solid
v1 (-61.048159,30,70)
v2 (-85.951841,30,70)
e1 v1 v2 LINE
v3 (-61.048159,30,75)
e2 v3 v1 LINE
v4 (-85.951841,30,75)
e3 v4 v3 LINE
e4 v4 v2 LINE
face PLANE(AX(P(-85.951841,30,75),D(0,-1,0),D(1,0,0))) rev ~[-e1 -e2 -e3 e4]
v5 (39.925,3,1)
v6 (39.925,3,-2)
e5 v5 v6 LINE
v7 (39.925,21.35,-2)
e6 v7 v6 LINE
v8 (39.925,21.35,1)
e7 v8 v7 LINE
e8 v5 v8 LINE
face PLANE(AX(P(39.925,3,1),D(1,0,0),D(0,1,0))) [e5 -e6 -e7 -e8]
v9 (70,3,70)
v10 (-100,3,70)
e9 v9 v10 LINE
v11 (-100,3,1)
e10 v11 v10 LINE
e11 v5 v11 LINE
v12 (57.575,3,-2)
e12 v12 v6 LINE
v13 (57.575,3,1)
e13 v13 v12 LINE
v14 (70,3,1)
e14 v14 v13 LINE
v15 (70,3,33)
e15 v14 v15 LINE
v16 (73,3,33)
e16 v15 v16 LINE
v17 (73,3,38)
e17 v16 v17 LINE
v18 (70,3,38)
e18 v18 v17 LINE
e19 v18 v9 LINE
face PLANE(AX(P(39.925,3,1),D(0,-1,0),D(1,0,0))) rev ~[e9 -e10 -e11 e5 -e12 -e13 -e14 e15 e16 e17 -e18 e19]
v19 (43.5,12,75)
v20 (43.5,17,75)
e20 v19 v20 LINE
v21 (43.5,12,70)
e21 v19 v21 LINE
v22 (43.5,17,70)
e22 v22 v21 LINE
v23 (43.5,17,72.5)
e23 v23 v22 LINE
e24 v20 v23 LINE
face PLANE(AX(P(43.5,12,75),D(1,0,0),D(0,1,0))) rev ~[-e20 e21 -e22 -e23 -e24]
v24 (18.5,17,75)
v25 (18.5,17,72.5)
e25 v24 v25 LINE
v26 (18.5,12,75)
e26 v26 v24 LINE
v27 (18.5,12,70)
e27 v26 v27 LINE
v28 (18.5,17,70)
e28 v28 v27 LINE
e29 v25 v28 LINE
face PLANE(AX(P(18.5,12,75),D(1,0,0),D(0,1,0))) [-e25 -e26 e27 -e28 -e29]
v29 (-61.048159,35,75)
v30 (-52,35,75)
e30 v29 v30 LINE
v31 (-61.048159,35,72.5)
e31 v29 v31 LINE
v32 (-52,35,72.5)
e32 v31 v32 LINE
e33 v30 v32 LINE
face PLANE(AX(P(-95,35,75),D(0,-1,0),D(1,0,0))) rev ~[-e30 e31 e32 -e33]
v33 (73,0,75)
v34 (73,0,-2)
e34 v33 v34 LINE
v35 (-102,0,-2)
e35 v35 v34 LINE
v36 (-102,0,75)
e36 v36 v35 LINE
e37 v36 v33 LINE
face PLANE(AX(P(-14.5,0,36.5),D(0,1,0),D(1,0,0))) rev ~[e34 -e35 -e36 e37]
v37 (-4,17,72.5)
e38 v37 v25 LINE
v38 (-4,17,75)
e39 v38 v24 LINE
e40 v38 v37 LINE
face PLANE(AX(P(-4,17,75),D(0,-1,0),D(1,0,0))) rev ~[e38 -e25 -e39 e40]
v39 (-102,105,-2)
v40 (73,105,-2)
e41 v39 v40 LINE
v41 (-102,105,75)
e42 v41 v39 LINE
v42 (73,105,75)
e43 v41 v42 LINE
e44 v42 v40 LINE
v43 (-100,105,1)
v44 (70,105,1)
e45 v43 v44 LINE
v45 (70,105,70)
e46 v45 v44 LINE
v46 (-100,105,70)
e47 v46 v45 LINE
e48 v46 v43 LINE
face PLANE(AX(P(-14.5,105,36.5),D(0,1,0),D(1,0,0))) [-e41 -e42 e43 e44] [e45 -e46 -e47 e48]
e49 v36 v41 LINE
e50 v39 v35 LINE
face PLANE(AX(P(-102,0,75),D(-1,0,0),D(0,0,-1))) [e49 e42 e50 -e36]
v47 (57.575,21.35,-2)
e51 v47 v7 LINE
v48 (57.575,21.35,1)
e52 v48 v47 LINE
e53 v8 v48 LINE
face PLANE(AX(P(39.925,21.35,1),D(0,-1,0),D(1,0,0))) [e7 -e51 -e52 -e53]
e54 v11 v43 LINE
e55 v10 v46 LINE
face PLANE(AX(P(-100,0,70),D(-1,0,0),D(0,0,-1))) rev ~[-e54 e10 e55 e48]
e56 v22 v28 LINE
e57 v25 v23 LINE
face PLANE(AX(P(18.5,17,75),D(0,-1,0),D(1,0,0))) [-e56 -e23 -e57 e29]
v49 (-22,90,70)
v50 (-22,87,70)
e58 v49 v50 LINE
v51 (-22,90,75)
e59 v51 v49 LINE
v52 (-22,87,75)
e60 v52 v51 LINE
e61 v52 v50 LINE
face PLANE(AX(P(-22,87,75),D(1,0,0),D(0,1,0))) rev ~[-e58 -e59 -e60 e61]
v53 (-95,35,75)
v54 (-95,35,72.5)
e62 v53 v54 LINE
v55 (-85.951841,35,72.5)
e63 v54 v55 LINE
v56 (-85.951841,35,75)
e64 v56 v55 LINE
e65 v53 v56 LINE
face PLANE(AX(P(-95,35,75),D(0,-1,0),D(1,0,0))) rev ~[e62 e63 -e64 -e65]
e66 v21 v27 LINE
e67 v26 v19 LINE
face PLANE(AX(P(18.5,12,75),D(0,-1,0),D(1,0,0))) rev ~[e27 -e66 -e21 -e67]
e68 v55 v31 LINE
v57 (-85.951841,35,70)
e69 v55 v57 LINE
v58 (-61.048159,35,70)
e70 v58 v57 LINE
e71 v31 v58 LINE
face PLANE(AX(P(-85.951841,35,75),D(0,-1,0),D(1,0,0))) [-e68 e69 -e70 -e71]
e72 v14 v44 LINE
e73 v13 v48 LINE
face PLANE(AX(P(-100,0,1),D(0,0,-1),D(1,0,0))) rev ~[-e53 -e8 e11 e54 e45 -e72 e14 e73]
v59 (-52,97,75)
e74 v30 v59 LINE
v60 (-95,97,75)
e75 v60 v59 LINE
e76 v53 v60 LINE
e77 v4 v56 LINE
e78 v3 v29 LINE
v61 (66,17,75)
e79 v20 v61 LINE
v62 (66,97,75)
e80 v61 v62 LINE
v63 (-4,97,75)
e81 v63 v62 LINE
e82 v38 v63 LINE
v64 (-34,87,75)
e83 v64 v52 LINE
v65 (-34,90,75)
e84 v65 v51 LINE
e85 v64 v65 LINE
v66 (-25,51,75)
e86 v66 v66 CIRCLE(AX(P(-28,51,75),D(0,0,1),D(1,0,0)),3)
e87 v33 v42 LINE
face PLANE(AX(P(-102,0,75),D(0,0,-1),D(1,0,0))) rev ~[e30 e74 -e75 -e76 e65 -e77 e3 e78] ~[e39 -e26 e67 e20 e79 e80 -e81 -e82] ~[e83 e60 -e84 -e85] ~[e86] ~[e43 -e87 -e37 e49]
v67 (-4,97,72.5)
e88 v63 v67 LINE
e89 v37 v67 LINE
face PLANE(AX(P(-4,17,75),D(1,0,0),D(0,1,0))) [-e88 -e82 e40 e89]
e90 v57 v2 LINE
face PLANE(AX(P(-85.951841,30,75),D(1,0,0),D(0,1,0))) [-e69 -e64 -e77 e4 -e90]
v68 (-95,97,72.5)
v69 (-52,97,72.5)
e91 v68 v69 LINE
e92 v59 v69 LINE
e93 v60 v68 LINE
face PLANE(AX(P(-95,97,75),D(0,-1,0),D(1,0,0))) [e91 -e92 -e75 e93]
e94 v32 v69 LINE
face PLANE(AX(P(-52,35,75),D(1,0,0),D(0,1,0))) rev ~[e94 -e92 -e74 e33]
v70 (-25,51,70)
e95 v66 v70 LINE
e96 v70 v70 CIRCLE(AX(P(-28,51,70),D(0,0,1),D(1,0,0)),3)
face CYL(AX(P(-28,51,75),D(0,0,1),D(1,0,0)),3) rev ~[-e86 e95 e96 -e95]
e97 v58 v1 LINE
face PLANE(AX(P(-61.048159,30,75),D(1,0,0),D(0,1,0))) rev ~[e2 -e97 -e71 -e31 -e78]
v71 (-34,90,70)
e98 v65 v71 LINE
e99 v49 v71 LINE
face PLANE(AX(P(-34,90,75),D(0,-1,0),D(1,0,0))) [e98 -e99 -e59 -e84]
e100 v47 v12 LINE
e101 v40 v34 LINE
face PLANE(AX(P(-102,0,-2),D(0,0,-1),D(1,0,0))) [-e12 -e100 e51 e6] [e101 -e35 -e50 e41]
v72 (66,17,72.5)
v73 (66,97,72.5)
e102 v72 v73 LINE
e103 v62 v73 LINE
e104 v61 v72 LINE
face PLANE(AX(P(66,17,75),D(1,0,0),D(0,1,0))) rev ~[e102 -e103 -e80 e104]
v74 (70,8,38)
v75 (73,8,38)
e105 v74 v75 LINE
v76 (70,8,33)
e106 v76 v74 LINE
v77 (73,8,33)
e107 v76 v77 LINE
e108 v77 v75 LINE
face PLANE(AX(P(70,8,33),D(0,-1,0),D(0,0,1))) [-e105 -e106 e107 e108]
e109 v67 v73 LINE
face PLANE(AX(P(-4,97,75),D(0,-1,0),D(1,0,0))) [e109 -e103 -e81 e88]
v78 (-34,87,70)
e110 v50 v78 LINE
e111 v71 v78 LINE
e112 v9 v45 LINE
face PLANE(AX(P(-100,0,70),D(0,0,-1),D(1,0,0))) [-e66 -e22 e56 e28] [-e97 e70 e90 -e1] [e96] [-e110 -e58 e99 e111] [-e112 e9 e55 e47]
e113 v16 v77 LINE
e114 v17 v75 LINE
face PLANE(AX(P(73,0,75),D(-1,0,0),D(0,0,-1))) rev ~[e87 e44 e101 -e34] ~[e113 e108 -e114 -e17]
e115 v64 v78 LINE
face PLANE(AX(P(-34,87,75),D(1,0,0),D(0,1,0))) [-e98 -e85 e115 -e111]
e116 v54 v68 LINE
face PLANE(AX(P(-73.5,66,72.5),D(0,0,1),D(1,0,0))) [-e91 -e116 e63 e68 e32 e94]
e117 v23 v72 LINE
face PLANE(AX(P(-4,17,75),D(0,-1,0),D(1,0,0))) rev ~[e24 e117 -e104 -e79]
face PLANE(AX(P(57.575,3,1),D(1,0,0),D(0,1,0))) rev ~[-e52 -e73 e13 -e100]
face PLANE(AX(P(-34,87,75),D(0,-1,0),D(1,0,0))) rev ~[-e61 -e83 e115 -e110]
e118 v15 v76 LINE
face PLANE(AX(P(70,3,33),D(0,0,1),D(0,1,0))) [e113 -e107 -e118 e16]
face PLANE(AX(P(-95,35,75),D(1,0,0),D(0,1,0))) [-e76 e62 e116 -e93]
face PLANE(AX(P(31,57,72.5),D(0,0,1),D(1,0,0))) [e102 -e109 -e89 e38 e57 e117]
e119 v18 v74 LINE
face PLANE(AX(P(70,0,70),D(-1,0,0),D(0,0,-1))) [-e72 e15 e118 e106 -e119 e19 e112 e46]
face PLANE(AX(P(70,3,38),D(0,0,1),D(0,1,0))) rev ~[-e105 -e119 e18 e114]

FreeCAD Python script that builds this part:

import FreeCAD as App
import Part
import Sketcher

V = App.Vector


def add_polygon(sketch, points):
    """Adds a closed chain of lines whose ends are joined by coincident constraints."""
    first, n = sketch.GeometryCount, len(points)
    for a, b in zip(points, points[1:] + points[:1]):
        sketch.addGeometry(Part.LineSegment(App.Vector(*a, 0), App.Vector(*b, 0)), False)
    for i in range(n):
        sketch.addConstraint(Sketcher.Constraint("Coincident", first + i, 2, first + (i + 1) % n, 1))

doc = App.newDocument("Part")
body = doc.addObject("PartDesign::Body", "Body")

# Sketch on XZ plane
sketch1 = body.newObject("Sketcher::SketchObject", "Sketch")
sketch1.AttachmentSupport = (doc.getObject("XZ_Plane"), [""])
sketch1.MapMode = "FlatFace"
add_polygon(sketch1, [(-102, -2), (-102, 75), (73, 75), (73, -2)])  # lines 0-3
add_polygon(sketch1, [(70, 70), (-100, 70), (-100, 1), (70, 1)])  # lines 4-7
sketch1.addConstraint([
    Sketcher.Constraint("Vertical", 0),
    Sketcher.Constraint("Horizontal", 1),
    Sketcher.Constraint("Vertical", 2),
    Sketcher.Constraint("Horizontal", 3),
    Sketcher.Constraint("Horizontal", 4),
    Sketcher.Constraint("Vertical", 5),
    Sketcher.Constraint("Horizontal", 6),
    Sketcher.Constraint("Vertical", 7),
    Sketcher.Constraint("DistanceX", 1, 1, 1, 2, 175.0),
    Sketcher.Constraint("DistanceX", 4, 2, 4, 1, 170.0),
    Sketcher.Constraint("DistanceY", 0, 1, 0, 2, 77.0),
    Sketcher.Constraint("DistanceY", 5, 2, 5, 1, 69.0),
    Sketcher.Constraint("DistanceX", 0, 2, -1, 1, 102.0),
    Sketcher.Constraint("DistanceY", -1, 1, 0, 2, 75.0),
    Sketcher.Constraint("DistanceX", 4, 2, -1, 1, 100.0),
    Sketcher.Constraint("DistanceY", -1, 1, 4, 2, 70.0),
])
pad1 = body.newObject("PartDesign::Pad", "Pad")
pad1.Profile = sketch1
pad1.Length = 105
pad1.Reversed = True

# Sketch on XZ plane
sketch2 = body.newObject("Sketcher::SketchObject", "Sketch001")
sketch2.AttachmentSupport = (doc.getObject("XZ_Plane"), [""])
sketch2.MapMode = "FlatFace"
add_polygon(sketch2, [(73, -2), (73, 75), (-102, 75), (-102, -2)])  # lines 0-3
sketch2.addConstraint([
    Sketcher.Constraint("Vertical", 0),
    Sketcher.Constraint("Horizontal", 1),
    Sketcher.Constraint("Vertical", 2),
    Sketcher.Constraint("Horizontal", 3),
    Sketcher.Constraint("DistanceX", 1, 2, 1, 1, 175.0),
    Sketcher.Constraint("DistanceY", 0, 1, 0, 2, 77.0),
    Sketcher.Constraint("DistanceX", -1, 1, 0, 2, 73.0),
    Sketcher.Constraint("DistanceY", -1, 1, 0, 2, 75.0),
])
pad2 = body.newObject("PartDesign::Pad", "Pad001")
pad2.Profile = sketch2
pad2.Length = 3
pad2.Reversed = True

# Sketch on XY plane
sketch3 = body.newObject("Sketcher::SketchObject", "Sketch002")
sketch3.AttachmentSupport = (doc.getObject("XY_Plane"), [""])
sketch3.MapMode = "FlatFace"
sketch3.AttachmentOffset = App.Placement(V(0, 0, 75), App.Rotation())
add_polygon(sketch3, [(-4, 97), (-4, 17), (66, 17), (66, 97)])  # lines 0-3
add_polygon(sketch3, [(-95, 97), (-95, 35), (-52, 35), (-52, 97)])  # lines 4-7
sketch3.addConstraint([
    Sketcher.Constraint("Vertical", 0),
    Sketcher.Constraint("Horizontal", 1),
    Sketcher.Constraint("Vertical", 2),
    Sketcher.Constraint("Horizontal", 3),
    Sketcher.Constraint("Vertical", 4),
    Sketcher.Constraint("Horizontal", 5),
    Sketcher.Constraint("Vertical", 6),
    Sketcher.Constraint("Horizontal", 7),
    Sketcher.Constraint("Horizontal", 3, 2, 6, 2),
    Sketcher.Constraint("DistanceX", 1, 1, 1, 2, 70.0),
    Sketcher.Constraint("DistanceX", 5, 1, 5, 2, 43.0),
    Sketcher.Constraint("DistanceY", 0, 2, 0, 1, 80.0),
    Sketcher.Constraint("DistanceY", 4, 2, 4, 1, 62.0),
    Sketcher.Constraint("DistanceX", 0, 2, -1, 1, 4.0),
    Sketcher.Constraint("DistanceY", -1, 1, 0, 2, 17.0),
    Sketcher.Constraint("DistanceX", 4, 2, -1, 1, 95.0),
])
pocket1 = body.newObject("PartDesign::Pocket", "Pocket")
pocket1.Profile = sketch3
pocket1.Length = 2.5

# Sketch on XY plane
sketch4 = body.newObject("Sketcher::SketchObject", "Sketch003")
sketch4.AttachmentSupport = (doc.getObject("XY_Plane"), [""])
sketch4.MapMode = "FlatFace"
sketch4.AttachmentOffset = App.Placement(V(0, 0, 75), App.Rotation())
add_polygon(sketch4, [(-34, 90), (-34, 87), (-22, 87), (-22, 90)])  # lines 0-3
add_polygon(sketch4, [(-85.951841, 35), (-85.951841, 30), (-61.048159, 30), (-61.048159, 35)])  # lines 4-7
add_polygon(sketch4, [(18.5, 17), (18.5, 12), (43.5, 12), (43.5, 17)])  # lines 8-11
sketch4.addGeometry(Part.Circle(V(-28, 51, 0), V(0, 0, 1), 3), False)  # 12
sketch4.addConstraint([
    Sketcher.Constraint("Vertical", 0),
    Sketcher.Constraint("Horizontal", 1),
    Sketcher.Constraint("Vertical", 2),
    Sketcher.Constraint("Horizontal", 3),
    Sketcher.Constraint("Vertical", 4),
    Sketcher.Constraint("Horizontal", 5),
    Sketcher.Constraint("Vertical", 6),
    Sketcher.Constraint("Horizontal", 7),
    Sketcher.Constraint("Vertical", 8),
    Sketcher.Constraint("Horizontal", 9),
    Sketcher.Constraint("Vertical", 10),
    Sketcher.Constraint("Horizontal", 11),
    Sketcher.Constraint("Equal", 6, 8),
    Sketcher.Constraint("Diameter", 12, 6.0),
    Sketcher.Constraint("DistanceX", 1, 1, 1, 2, 12.0),
    Sketcher.Constraint("DistanceX", 9, 1, 9, 2, 25.0),
    Sketcher.Constraint("DistanceY", 0, 2, 0, 1, 3.0),
    Sketcher.Constraint("DistanceY", 4, 2, 4, 1, 5.0),
    Sketcher.Constraint("DistanceX", 12, 3, -1, 1, 28.0),
    Sketcher.Constraint("DistanceY", -1, 1, 12, 3, 51.0),
    Sketcher.Constraint("DistanceX", 0, 2, -1, 1, 34.0),
    Sketcher.Constraint("DistanceY", -1, 1, 0, 2, 87.0),
    Sketcher.Constraint("DistanceY", -1, 1, 4, 2, 30.0),
    Sketcher.Constraint("DistanceY", -1, 1, 8, 2, 12.0),
    Sketcher.Constraint("DistanceX", -1, 1, 8, 2, 18.5),
    Sketcher.Constraint("DistanceX", 5, 1, 5, 2, 24.903682),
    Sketcher.Constraint("DistanceX", 4, 2, -1, 1, 85.951841),
])
pocket2 = body.newObject("PartDesign::Pocket", "Pocket001")
pocket2.Profile = sketch4
pocket2.Length = 12.5

# Sketch on XY plane
sketch5 = body.newObject("Sketcher::SketchObject", "Sketch004")
sketch5.AttachmentSupport = (doc.getObject("XY_Plane"), [""])
sketch5.MapMode = "FlatFace"
sketch5.AttachmentOffset = App.Placement(V(0, 0, 1), App.Rotation())
add_polygon(sketch5, [(39.925, 21.35), (39.925, 3), (57.575, 3), (57.575, 21.35)])  # lines 0-3
sketch5.addConstraint([
    Sketcher.Constraint("Vertical", 0),
    Sketcher.Constraint("Horizontal", 1),
    Sketcher.Constraint("Vertical", 2),
    Sketcher.Constraint("Horizontal", 3),
    Sketcher.Constraint("DistanceY", -1, 1, 0, 2, 3.0),
    Sketcher.Constraint("DistanceX", 1, 1, 1, 2, 17.65),
    Sketcher.Constraint("DistanceY", 0, 2, 0, 1, 18.35),
    Sketcher.Constraint("DistanceX", -1, 1, 0, 2, 39.925),
])
pocket3 = body.newObject("PartDesign::Pocket", "Pocket002")
pocket3.Profile = sketch5
pocket3.Length = 10

# Sketch on YZ plane
sketch6 = body.newObject("Sketcher::SketchObject", "Sketch005")
sketch6.AttachmentSupport = (doc.getObject("YZ_Plane"), [""])
sketch6.MapMode = "FlatFace"
sketch6.AttachmentOffset = App.Placement(V(0, 0, 70), App.Rotation())
add_polygon(sketch6, [(8, 33), (3, 33), (3, 38), (8, 38)])  # lines 0-3
sketch6.addConstraint([
    Sketcher.Constraint("Horizontal", 0),
    Sketcher.Constraint("Vertical", 1),
    Sketcher.Constraint("Horizontal", 2),
    Sketcher.Constraint("Vertical", 3),
    Sketcher.Constraint("Equal", 2, 1),
    Sketcher.Constraint("DistanceX", 0, 2, 0, 1, 5.0),
    Sketcher.Constraint("DistanceX", -1, 1, 0, 2, 3.0),
    Sketcher.Constraint("DistanceY", -1, 1, 0, 2, 33.0),
])
pocket4 = body.newObject("PartDesign::Pocket", "Pocket003")
pocket4.Profile = sketch6
pocket4.Length = 10
pocket4.Reversed = True

doc.recompute()
